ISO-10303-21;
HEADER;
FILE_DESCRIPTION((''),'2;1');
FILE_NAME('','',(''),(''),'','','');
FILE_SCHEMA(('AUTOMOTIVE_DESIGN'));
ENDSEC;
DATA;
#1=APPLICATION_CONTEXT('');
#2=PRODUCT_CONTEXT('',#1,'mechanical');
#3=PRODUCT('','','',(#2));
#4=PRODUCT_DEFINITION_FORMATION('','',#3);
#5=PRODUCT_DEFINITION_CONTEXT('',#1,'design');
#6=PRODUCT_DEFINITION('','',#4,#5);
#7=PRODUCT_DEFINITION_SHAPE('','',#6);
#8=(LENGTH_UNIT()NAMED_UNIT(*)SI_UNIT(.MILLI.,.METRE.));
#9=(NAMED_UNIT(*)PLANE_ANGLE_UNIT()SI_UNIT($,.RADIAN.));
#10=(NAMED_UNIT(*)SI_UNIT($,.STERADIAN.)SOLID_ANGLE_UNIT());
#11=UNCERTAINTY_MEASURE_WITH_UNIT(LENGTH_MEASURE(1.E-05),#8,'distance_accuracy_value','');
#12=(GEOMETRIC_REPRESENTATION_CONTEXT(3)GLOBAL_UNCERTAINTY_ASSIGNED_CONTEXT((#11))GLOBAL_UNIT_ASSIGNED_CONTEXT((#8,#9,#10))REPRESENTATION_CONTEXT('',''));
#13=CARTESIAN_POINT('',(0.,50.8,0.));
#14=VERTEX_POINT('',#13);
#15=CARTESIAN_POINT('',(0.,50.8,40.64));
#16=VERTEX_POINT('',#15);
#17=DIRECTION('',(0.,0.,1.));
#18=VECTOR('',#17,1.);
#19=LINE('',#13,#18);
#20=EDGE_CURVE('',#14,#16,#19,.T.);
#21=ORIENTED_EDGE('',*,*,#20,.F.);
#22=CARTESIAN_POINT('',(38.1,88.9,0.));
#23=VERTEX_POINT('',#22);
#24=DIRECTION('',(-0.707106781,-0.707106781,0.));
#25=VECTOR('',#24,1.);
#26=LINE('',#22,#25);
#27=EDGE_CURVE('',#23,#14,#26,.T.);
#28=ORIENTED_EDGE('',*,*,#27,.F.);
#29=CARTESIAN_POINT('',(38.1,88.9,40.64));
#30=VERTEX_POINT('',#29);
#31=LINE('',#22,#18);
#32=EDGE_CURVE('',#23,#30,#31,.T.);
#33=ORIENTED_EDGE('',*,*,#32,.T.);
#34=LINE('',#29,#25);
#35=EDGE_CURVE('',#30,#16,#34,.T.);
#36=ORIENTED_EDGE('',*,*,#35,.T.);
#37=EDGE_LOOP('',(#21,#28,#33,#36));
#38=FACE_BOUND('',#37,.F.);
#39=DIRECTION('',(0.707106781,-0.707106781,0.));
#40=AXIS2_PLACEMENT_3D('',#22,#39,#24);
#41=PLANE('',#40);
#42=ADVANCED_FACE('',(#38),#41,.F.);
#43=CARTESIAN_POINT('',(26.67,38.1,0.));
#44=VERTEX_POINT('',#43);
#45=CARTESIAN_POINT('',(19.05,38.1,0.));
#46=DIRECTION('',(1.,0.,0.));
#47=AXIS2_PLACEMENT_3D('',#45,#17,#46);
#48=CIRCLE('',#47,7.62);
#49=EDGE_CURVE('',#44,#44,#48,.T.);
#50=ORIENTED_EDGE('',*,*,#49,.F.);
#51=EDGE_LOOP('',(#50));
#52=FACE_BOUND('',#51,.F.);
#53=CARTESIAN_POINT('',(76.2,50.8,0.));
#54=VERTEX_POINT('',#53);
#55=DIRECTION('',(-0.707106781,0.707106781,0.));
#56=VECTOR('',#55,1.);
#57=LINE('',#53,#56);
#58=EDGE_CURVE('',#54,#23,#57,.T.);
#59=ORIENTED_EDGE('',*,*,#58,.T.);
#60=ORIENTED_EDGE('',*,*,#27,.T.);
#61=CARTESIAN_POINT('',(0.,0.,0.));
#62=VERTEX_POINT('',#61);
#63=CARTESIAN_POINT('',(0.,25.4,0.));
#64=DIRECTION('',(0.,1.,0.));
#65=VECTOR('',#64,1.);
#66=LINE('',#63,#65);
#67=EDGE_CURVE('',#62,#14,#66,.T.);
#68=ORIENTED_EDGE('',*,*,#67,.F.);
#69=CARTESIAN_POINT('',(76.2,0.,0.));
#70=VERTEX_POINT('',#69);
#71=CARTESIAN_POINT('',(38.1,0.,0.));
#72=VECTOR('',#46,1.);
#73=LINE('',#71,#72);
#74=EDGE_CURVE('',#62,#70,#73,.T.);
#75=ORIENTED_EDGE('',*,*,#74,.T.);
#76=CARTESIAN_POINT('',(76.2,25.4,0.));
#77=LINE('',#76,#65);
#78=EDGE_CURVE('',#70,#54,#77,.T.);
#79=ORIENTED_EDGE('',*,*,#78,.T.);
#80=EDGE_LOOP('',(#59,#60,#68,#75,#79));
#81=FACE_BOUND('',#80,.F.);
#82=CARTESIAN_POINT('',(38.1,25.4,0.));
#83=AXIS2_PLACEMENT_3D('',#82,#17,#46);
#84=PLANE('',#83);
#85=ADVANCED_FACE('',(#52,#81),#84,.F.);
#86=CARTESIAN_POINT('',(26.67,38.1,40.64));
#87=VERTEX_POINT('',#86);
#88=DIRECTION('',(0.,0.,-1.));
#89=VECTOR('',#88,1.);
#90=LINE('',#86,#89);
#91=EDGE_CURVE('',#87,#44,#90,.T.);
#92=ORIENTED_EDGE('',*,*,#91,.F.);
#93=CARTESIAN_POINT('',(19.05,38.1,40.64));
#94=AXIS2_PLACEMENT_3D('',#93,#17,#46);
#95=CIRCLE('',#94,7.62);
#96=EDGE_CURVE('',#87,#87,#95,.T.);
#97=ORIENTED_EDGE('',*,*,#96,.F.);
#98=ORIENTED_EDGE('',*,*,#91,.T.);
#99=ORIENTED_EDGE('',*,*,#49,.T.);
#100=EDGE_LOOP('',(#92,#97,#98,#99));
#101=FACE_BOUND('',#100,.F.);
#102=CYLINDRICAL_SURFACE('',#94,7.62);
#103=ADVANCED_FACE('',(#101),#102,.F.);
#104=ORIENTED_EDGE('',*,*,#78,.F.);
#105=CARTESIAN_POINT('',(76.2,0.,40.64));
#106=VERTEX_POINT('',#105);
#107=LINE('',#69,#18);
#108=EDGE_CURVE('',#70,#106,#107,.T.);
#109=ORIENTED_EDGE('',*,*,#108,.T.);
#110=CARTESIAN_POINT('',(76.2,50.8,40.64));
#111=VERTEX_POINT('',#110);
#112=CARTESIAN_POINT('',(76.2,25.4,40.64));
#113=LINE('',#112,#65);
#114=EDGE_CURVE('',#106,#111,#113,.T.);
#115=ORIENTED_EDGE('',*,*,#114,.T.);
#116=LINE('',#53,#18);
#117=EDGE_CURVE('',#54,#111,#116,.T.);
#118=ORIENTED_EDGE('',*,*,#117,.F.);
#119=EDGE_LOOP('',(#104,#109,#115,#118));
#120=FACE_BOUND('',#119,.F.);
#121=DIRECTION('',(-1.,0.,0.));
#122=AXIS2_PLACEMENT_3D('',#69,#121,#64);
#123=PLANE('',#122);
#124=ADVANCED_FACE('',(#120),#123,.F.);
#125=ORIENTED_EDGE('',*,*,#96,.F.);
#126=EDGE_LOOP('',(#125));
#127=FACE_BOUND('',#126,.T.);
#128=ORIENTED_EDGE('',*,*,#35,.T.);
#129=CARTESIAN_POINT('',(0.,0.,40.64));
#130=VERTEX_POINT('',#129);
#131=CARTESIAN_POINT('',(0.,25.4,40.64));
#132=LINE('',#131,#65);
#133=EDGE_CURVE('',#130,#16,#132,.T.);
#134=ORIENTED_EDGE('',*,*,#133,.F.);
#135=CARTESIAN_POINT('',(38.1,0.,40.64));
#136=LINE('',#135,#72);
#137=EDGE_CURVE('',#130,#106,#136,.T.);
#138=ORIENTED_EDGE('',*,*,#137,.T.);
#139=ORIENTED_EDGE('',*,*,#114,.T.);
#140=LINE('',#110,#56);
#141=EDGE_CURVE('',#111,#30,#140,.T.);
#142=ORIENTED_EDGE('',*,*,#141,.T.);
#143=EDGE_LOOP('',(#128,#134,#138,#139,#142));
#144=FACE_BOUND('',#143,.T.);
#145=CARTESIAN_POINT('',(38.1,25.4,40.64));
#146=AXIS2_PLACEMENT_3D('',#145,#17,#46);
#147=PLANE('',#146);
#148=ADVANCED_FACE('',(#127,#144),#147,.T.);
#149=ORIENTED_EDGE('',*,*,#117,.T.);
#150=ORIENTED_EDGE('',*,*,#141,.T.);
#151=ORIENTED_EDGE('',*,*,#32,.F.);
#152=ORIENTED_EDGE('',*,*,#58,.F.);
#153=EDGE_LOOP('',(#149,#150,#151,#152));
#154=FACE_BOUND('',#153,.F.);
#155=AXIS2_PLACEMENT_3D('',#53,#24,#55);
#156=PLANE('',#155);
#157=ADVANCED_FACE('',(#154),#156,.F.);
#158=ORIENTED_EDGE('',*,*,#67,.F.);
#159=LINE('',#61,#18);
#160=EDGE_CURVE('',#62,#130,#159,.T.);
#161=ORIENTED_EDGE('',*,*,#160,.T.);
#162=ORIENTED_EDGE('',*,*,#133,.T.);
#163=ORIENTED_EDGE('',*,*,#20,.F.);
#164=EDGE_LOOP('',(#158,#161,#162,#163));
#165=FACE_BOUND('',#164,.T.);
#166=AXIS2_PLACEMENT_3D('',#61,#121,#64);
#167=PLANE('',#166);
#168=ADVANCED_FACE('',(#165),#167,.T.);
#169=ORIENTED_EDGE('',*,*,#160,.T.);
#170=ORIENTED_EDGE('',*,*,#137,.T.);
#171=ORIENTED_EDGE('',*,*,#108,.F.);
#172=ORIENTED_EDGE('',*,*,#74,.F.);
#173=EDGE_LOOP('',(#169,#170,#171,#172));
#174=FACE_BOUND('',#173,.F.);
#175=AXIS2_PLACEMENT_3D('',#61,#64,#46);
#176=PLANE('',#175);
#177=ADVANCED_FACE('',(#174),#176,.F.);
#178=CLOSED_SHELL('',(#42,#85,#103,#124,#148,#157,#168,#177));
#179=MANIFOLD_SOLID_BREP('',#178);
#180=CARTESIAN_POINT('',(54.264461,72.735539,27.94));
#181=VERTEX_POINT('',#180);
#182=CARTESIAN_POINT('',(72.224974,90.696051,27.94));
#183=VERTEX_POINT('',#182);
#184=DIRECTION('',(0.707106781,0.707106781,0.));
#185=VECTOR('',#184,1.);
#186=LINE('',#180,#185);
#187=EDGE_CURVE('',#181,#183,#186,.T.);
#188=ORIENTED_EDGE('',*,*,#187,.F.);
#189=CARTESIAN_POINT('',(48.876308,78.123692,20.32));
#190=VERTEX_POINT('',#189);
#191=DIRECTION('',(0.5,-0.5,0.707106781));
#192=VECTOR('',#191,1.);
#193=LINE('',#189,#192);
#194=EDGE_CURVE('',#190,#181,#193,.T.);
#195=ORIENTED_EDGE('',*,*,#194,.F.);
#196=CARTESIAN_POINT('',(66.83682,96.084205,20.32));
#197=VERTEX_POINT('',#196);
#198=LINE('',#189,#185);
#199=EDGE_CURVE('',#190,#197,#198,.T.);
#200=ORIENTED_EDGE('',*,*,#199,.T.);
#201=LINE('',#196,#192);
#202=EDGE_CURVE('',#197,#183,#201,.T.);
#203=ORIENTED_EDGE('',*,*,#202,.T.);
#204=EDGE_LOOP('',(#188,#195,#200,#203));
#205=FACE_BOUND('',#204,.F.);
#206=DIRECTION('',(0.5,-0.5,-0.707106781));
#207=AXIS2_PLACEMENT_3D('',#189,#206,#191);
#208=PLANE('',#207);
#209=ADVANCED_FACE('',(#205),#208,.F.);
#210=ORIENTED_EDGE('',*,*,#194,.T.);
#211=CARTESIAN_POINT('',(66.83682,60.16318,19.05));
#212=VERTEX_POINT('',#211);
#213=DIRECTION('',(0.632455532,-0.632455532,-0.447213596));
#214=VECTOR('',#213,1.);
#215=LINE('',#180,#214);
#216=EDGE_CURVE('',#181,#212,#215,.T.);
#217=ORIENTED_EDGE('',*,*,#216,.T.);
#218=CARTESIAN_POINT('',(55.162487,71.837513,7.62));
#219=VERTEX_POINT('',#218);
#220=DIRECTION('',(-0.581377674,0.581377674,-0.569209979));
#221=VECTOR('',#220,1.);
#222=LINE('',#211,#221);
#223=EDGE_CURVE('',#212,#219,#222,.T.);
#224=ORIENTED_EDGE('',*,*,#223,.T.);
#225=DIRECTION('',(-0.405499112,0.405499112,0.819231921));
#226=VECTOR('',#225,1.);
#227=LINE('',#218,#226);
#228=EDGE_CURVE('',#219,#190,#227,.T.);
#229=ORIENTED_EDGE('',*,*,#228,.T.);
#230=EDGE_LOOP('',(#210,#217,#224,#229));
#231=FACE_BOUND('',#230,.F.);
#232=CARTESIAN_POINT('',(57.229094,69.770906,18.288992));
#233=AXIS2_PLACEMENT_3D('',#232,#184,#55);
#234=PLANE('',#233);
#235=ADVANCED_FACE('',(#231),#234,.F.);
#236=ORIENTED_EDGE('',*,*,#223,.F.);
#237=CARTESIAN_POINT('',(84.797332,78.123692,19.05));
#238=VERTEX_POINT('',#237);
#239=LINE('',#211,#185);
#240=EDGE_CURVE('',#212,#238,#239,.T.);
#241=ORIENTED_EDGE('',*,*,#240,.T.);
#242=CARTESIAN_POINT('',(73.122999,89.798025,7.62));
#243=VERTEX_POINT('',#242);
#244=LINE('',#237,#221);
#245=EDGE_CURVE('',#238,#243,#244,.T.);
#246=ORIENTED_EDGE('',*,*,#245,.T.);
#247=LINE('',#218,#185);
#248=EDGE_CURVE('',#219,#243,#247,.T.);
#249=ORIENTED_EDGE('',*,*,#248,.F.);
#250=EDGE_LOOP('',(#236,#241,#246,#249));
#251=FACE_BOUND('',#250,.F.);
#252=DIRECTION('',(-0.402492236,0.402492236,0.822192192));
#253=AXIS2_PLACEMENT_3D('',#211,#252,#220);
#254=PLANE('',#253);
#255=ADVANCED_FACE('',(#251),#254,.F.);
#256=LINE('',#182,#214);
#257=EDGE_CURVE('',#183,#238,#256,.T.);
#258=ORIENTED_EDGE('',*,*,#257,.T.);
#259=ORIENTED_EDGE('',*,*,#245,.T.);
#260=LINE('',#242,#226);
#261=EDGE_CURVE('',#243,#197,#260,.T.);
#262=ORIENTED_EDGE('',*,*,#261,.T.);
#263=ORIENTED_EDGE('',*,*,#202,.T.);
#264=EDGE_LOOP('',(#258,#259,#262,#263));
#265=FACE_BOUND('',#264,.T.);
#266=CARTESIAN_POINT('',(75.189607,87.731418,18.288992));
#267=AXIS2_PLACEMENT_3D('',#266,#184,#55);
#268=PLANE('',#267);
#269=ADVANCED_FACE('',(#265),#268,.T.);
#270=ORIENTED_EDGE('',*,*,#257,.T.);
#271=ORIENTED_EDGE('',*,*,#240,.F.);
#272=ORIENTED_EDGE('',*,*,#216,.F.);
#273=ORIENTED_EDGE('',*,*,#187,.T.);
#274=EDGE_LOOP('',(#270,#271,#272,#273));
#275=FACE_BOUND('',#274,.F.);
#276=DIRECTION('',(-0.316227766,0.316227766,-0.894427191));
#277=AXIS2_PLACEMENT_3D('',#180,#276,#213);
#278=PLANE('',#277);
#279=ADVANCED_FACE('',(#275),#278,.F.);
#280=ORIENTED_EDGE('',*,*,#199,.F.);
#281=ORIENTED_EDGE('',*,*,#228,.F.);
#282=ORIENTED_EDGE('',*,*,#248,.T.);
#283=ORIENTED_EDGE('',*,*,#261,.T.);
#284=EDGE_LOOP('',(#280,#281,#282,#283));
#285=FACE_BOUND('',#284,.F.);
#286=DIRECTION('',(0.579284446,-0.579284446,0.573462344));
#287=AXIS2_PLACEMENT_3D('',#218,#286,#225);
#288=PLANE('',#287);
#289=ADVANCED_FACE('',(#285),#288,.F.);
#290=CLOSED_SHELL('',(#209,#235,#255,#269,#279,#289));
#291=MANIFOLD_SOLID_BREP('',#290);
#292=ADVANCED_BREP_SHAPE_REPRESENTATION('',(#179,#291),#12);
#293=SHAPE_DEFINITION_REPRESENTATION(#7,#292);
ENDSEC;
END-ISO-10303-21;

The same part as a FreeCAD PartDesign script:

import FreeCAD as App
import Part
import Sketcher
Q = App.Units.Quantity

doc = App.newDocument("Part")
body = doc.addObject("PartDesign::Body", "Body")

# Sketch on XY plane
sketch1 = doc.addObject("Sketcher::SketchObject", "Sketch")
body.addObject(sketch1)
sketch1.AttachmentSupport = (doc.XY_Plane, [""])
sketch1.MapMode = "FlatFace"
sketch1.addGeometry([
    Part.LineSegment(App.Vector(0, 51, 0), App.Vector(0, 0, 0)),  # 0
    Part.LineSegment(App.Vector(0, 0, 0), App.Vector(76, 0, 0)),  # 1
    Part.LineSegment(App.Vector(76, 0, 0), App.Vector(76, 51, 0)),  # 2
    Part.LineSegment(App.Vector(76, 51, 0), App.Vector(38, 89, 0)),  # 3
    Part.LineSegment(App.Vector(38, 89, 0), App.Vector(0, 51, 0)),  # 4
], False)
sketch1.addConstraint([
    Sketcher.Constraint("Coincident", 0, 2, 1, 1),
    Sketcher.Constraint("Coincident", 1, 2, 2, 1),
    Sketcher.Constraint("Coincident", 2, 2, 3, 1),
    Sketcher.Constraint("Coincident", 3, 2, 4, 1),
    Sketcher.Constraint("Coincident", 4, 2, 0, 1),
    Sketcher.Constraint("Vertical", 0),
    Sketcher.Constraint("Horizontal", 1),
    Sketcher.Constraint("Vertical", 2),
    Sketcher.Constraint("Coincident", 0, 2, -1, 1),
    Sketcher.Constraint("Perpendicular", 3, 4),
    Sketcher.Constraint("Horizontal", 2, 2, 4, 2),
    Sketcher.Constraint("Equal", 3, 4),
    Sketcher.Constraint("DistanceX", 1, 1, 1, 2, Q("3 in")),
    Sketcher.Constraint("DistanceY", 0, 2, 0, 1, Q("2 in")),
])
pad1 = doc.addObject("PartDesign::Pad", "Pad")
body.addObject(pad1)
pad1.Profile = sketch1
pad1.Length = Q("1.6 in")

# Sketch on XY plane
sketch2 = doc.addObject("Sketcher::SketchObject", "Sketch001")
body.addObject(sketch2)
sketch2.AttachmentSupport = (doc.XY_Plane, [""])
sketch2.MapMode = "FlatFace"
sketch2.AttachmentOffset = App.Placement(App.Vector(0, 0, 1.6 * 25.4), App.Rotation())
sketch2.addGeometry(Part.Circle(App.Vector(19, 38, 0), App.Vector(0, 0, 1), 8), False)
sketch2.addConstraint([
    Sketcher.Constraint("Diameter", 0, Q("0.6 in")),
    Sketcher.Constraint("DistanceY", -1, 1, 0, 3, Q("1.5 in")),
    Sketcher.Constraint("DistanceX", -1, 1, 0, 3, Q("0.75 in")),
])
pocket1 = doc.addObject("PartDesign::Pocket", "Pocket")
body.addObject(pocket1)
pocket1.Profile = sketch2
pocket1.Type = "ThroughAll"
body2 = doc.addObject("PartDesign::Body", "Body001")

# Sketch on an angled plane
sketch3 = doc.addObject("Sketcher::SketchObject", "Sketch002")
body2.addObject(sketch3)
sketch3.Placement = App.Placement(App.Vector(63.5, 63.5, 0), App.Rotation(App.Vector(-0.707106781, 0.707106781, 0), App.Vector(0, 0, 0.999999999), App.Vector(0.707106781, 0.707106781, 0), "ZXY"))
sketch3.addGeometry([
    Part.LineSegment(App.Vector(12, 8, 0), App.Vector(21, 20, 0)),
    Part.LineSegment(App.Vector(21, 20, 0), App.Vector(13, 28, 0)),
    Part.LineSegment(App.Vector(13, 28, 0), App.Vector(-5, 19, 0)),
    Part.LineSegment(App.Vector(-5, 19, 0), App.Vector(12, 8, 0)),
], False)
sketch3.addConstraint([
    Sketcher.Constraint("Coincident", 0, 2, 1, 1),
    Sketcher.Constraint("Coincident", 1, 2, 2, 1),
    Sketcher.Constraint("Coincident", 2, 2, 3, 1),
    Sketcher.Constraint("Coincident", 3, 2, 0, 1),
    Sketcher.Constraint("Angle", 1, Q("135 deg")),
    Sketcher.Constraint("DistanceX", 2, 2, 0, 2, Q("1 in")),
    Sketcher.Constraint("DistanceY", -1, 1, 0, 2, Q("0.8 in")),
    Sketcher.Constraint("DistanceY", -1, 1, 1, 2, Q("1.1 in")),
    Sketcher.Constraint("DistanceY", -1, 1, 3, 2, Q("0.3 in")),
    Sketcher.Constraint("DistanceY", -1, 1, 2, 2, Q("0.75 in")),
    Sketcher.Constraint("DistanceX", 3, 2, 0, 2, Q("0.35 in")),
    Sketcher.Constraint("DistanceX", -1, 1, 0, 2, 20.681024),
])
pad2 = doc.addObject("PartDesign::Pad", "Pad001")
body2.addObject(pad2)
pad2.Profile = sketch3
pad2.Length = Q("1 in")

doc.recompute()
